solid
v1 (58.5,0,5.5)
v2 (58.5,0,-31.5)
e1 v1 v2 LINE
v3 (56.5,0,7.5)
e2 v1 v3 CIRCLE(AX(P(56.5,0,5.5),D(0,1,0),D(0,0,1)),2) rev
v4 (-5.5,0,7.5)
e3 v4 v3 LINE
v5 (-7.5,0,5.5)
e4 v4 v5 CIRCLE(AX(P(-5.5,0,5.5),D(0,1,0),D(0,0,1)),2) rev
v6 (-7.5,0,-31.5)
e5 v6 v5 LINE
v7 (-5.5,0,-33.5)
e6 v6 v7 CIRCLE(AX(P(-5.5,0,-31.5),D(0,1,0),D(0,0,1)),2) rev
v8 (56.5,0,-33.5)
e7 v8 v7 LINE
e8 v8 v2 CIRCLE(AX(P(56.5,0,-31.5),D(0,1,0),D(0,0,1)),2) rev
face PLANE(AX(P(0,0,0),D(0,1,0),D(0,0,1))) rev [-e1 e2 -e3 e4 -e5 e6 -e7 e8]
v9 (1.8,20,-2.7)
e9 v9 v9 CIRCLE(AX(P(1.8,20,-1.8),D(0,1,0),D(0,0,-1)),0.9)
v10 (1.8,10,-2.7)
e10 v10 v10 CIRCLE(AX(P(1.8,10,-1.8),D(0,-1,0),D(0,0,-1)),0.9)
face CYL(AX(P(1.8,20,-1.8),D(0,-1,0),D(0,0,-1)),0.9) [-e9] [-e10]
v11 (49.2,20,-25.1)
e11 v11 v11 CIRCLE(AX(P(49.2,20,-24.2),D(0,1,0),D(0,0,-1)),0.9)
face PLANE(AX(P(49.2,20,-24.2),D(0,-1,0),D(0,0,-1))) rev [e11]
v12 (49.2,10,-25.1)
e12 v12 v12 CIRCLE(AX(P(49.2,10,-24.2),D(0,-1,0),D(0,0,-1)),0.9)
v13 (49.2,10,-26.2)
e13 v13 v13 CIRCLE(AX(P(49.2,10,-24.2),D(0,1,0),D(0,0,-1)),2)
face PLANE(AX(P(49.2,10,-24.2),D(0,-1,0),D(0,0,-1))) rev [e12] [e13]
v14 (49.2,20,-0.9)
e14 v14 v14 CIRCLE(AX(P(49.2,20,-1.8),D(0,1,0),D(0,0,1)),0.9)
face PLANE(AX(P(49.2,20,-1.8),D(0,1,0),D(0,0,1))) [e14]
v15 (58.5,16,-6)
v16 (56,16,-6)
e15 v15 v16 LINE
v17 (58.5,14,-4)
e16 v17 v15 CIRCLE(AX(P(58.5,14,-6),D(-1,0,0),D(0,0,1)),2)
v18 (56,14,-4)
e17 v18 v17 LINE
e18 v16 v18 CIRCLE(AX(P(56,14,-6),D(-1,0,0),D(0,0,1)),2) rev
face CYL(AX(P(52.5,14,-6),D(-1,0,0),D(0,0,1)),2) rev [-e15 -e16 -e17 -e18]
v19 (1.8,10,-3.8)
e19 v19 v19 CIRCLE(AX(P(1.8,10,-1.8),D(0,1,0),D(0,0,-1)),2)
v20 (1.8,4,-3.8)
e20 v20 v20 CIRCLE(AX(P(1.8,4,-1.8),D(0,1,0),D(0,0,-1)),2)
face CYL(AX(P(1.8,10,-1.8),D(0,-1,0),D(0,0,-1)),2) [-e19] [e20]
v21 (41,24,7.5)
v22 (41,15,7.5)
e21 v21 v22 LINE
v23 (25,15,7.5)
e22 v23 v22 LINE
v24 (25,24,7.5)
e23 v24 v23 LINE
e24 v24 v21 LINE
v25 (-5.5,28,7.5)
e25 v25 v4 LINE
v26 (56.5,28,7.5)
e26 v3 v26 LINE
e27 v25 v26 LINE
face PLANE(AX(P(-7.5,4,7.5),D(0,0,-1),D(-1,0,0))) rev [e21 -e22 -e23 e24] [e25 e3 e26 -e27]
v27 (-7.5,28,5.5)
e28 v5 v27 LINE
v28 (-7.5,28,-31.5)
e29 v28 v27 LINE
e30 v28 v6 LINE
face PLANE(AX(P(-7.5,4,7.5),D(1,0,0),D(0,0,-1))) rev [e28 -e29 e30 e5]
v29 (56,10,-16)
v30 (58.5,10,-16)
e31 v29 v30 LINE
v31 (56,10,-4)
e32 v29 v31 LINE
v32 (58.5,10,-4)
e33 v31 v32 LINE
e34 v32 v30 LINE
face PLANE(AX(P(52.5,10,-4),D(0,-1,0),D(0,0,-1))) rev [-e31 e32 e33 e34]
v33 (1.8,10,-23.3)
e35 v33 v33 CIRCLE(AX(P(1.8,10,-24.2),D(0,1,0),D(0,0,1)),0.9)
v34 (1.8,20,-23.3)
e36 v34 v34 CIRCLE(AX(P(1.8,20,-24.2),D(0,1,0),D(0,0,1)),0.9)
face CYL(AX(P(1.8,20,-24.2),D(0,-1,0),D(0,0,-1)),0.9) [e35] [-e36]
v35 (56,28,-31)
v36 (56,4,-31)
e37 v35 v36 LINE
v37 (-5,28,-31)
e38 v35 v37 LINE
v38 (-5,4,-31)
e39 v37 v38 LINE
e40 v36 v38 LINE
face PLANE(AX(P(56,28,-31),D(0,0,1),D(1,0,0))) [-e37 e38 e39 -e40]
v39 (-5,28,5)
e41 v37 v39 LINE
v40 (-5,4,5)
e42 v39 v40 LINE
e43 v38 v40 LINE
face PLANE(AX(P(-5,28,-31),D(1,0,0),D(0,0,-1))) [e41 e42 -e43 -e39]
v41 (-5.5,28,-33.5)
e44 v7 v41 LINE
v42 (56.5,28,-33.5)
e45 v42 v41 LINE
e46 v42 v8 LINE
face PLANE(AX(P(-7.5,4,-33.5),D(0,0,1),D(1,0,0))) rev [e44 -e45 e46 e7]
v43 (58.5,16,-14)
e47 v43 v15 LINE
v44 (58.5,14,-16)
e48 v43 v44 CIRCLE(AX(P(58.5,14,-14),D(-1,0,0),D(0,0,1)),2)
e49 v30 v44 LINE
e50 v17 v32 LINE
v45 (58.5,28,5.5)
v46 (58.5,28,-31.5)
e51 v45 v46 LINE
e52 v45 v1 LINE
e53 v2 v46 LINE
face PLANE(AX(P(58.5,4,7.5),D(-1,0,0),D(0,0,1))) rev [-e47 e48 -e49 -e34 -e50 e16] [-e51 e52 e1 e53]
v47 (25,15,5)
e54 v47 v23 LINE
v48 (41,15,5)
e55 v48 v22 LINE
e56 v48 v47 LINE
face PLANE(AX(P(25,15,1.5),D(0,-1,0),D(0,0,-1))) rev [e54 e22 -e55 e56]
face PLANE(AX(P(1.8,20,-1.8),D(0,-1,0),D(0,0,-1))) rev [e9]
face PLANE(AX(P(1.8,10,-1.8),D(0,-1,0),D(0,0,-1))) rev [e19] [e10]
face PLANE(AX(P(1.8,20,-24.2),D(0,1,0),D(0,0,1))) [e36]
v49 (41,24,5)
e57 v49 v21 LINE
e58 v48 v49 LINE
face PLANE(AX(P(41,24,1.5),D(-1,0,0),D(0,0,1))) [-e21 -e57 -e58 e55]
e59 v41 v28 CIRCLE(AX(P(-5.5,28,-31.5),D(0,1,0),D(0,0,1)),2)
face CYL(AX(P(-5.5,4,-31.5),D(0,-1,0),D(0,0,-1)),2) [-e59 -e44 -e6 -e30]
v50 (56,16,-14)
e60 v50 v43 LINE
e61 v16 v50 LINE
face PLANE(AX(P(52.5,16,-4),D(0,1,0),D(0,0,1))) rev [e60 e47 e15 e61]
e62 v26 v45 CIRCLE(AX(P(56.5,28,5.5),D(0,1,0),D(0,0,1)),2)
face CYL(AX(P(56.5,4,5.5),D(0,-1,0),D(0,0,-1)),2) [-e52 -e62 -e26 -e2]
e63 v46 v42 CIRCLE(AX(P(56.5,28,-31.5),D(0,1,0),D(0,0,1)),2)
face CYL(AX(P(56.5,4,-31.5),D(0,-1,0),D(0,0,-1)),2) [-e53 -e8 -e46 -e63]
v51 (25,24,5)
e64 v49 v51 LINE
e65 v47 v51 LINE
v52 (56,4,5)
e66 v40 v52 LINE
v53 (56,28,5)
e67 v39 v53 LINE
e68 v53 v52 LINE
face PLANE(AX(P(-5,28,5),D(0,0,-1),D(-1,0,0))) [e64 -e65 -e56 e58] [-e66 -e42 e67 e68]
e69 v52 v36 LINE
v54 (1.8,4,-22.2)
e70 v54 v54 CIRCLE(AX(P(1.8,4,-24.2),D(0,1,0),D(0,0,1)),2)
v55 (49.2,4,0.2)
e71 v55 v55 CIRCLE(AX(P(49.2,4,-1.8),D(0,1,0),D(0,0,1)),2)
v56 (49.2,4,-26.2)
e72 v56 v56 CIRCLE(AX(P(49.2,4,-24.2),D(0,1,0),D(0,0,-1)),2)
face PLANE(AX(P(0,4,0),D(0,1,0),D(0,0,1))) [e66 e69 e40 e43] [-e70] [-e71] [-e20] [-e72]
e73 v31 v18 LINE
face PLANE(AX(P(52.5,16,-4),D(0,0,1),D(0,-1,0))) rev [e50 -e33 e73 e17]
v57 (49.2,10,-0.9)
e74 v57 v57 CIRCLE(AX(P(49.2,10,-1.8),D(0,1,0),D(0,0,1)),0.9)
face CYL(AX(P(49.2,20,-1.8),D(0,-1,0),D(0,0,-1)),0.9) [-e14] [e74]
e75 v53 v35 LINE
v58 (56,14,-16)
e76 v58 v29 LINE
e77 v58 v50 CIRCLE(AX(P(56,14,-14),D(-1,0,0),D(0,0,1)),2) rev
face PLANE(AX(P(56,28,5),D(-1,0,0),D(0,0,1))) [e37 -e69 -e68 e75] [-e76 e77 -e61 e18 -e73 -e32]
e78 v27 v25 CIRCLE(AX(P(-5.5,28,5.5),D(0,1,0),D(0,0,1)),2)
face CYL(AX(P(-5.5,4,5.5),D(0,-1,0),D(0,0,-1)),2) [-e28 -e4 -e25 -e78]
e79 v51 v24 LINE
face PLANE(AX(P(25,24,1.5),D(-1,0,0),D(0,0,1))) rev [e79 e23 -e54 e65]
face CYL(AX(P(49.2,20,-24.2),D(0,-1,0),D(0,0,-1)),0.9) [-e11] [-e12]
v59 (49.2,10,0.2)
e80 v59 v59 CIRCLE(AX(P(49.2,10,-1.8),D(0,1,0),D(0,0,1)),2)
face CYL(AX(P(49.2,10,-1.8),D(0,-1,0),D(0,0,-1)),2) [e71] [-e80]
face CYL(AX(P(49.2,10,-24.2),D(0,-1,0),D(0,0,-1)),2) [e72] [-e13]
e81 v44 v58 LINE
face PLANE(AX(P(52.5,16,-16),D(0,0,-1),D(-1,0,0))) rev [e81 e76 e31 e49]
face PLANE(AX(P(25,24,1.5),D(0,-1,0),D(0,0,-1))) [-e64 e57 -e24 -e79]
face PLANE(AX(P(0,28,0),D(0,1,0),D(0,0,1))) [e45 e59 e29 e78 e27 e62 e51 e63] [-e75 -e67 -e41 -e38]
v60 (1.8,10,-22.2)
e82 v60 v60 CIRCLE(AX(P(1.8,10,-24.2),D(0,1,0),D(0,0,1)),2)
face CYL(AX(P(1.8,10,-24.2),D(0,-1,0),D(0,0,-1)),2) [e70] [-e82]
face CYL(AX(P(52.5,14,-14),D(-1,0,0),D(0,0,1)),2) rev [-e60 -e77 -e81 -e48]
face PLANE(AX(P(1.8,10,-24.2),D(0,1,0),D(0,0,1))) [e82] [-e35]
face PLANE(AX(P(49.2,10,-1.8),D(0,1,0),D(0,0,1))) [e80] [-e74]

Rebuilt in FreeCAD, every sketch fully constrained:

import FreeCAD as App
import Part
import Sketcher


def edges_at(feature, points):
    """Names of the edges that pass closest to the given points."""
    edges = feature.Shape.Edges
    near = lambda p: min(range(len(edges)), key=lambda i: edges[i].distToShape(Part.Vertex(*p))[0])
    return sorted({f"Edge{near(p) + 1}" for p in points})

doc = App.newDocument("Part")
body = doc.addObject("PartDesign::Body", "Body")

# Sketch on XZ plane
sketch1 = body.newObject("Sketcher::SketchObject", "Sketch")
sketch1.AttachmentSupport = (doc.getObject("XZ_Plane"), [""])
sketch1.MapMode = "FlatFace"
sketch1.addGeometry(Part.LineSegment(App.Vector(-8, -34, 0), App.Vector(-8, 8, 0)), False)
sketch1.addGeometry(Part.LineSegment(App.Vector(-8, 8, 0), App.Vector(58, 8, 0)), False)
sketch1.addGeometry(Part.LineSegment(App.Vector(58, 8, 0), App.Vector(58, -34, 0)), False)
sketch1.addGeometry(Part.LineSegment(App.Vector(58, -34, 0), App.Vector(-8, -34, 0)), False)
sketch1.addConstraint(Sketcher.Constraint("Coincident", 0, 2, 1, 1))
sketch1.addConstraint(Sketcher.Constraint("Coincident", 1, 2, 2, 1))
sketch1.addConstraint(Sketcher.Constraint("Coincident", 2, 2, 3, 1))
sketch1.addConstraint(Sketcher.Constraint("Coincident", 3, 2, 0, 1))
sketch1.addConstraint(Sketcher.Constraint("Vertical", 0))
sketch1.addConstraint(Sketcher.Constraint("Horizontal", 1))
sketch1.addConstraint(Sketcher.Constraint("Vertical", 2))
sketch1.addConstraint(Sketcher.Constraint("Horizontal", 3))
sketch1.addConstraint(Sketcher.Constraint("DistanceX", 1, 1, 1, 2, 66.0))
sketch1.addConstraint(Sketcher.Constraint("DistanceY", 0, 1, 0, 2, 41.0))
sketch1.addConstraint(Sketcher.Constraint("DistanceX", 0, 2, -1, 1, 7.5))
sketch1.addConstraint(Sketcher.Constraint("DistanceY", -1, 1, 0, 2, 7.5))
pad1 = body.newObject("PartDesign::Pad", "Pad")
pad1.Profile = sketch1
pad1.Length = 4
pad1.Reversed = True

# Sketch on XZ plane
sketch2 = body.newObject("Sketcher::SketchObject", "Sketch001")
sketch2.AttachmentSupport = (doc.getObject("XZ_Plane"), [""])
sketch2.MapMode = "FlatFace"
sketch2.AttachmentOffset = App.Placement(App.Vector(0, 0, -4), App.Rotation())
sketch2.addGeometry(Part.LineSegment(App.Vector(-8, -34, 0), App.Vector(-8, 8, 0)), False)
sketch2.addGeometry(Part.LineSegment(App.Vector(-8, 8, 0), App.Vector(58, 8, 0)), False)
sketch2.addGeometry(Part.LineSegment(App.Vector(58, 8, 0), App.Vector(58, -34, 0)), False)
sketch2.addGeometry(Part.LineSegment(App.Vector(58, -34, 0), App.Vector(-8, -34, 0)), False)
sketch2.addGeometry(Part.LineSegment(App.Vector(56, 5, 0), App.Vector(-5, 5, 0)), False)
sketch2.addGeometry(Part.LineSegment(App.Vector(-5, 5, 0), App.Vector(-5, -31, 0)), False)
sketch2.addGeometry(Part.LineSegment(App.Vector(-5, -31, 0), App.Vector(56, -31, 0)), False)
sketch2.addGeometry(Part.LineSegment(App.Vector(56, -31, 0), App.Vector(56, 5, 0)), False)
sketch2.addConstraint(Sketcher.Constraint("Coincident", 0, 2, 1, 1))
sketch2.addConstraint(Sketcher.Constraint("Coincident", 1, 2, 2, 1))
sketch2.addConstraint(Sketcher.Constraint("Coincident", 2, 2, 3, 1))
sketch2.addConstraint(Sketcher.Constraint("Coincident", 3, 2, 0, 1))
sketch2.addConstraint(Sketcher.Constraint("Coincident", 4, 2, 5, 1))
sketch2.addConstraint(Sketcher.Constraint("Coincident", 5, 2, 6, 1))
sketch2.addConstraint(Sketcher.Constraint("Coincident", 6, 2, 7, 1))
sketch2.addConstraint(Sketcher.Constraint("Coincident", 7, 2, 4, 1))
sketch2.addConstraint(Sketcher.Constraint("Vertical", 0))
sketch2.addConstraint(Sketcher.Constraint("Horizontal", 1))
sketch2.addConstraint(Sketcher.Constraint("Vertical", 2))
sketch2.addConstraint(Sketcher.Constraint("Horizontal", 3))
sketch2.addConstraint(Sketcher.Constraint("Horizontal", 4))
sketch2.addConstraint(Sketcher.Constraint("Vertical", 5))
sketch2.addConstraint(Sketcher.Constraint("Horizontal", 6))
sketch2.addConstraint(Sketcher.Constraint("Vertical", 7))
sketch2.addConstraint(Sketcher.Constraint("DistanceX", 1, 1, 1, 2, 66.0))
sketch2.addConstraint(Sketcher.Constraint("DistanceX", 4, 2, 4, 1, 61.0))
sketch2.addConstraint(Sketcher.Constraint("DistanceY", 0, 1, 0, 2, 41.0))
sketch2.addConstraint(Sketcher.Constraint("DistanceY", 5, 2, 5, 1, 36.0))
sketch2.addConstraint(Sketcher.Constraint("DistanceX", 4, 2, -1, 1, 5.0))
sketch2.addConstraint(Sketcher.Constraint("DistanceY", -1, 1, 4, 2, 5.0))
sketch2.addConstraint(Sketcher.Constraint("DistanceX", 0, 2, -1, 1, 7.5))
sketch2.addConstraint(Sketcher.Constraint("DistanceY", -1, 1, 0, 2, 7.5))
pad2 = body.newObject("PartDesign::Pad", "Pad001")
pad2.Profile = sketch2
pad2.Length = 24
pad2.Reversed = True

# Sketch on XZ plane
sketch3 = body.newObject("Sketcher::SketchObject", "Sketch002")
sketch3.AttachmentSupport = (doc.getObject("XZ_Plane"), [""])
sketch3.MapMode = "FlatFace"
sketch3.AttachmentOffset = App.Placement(App.Vector(0, 0, -4), App.Rotation())
sketch3.addGeometry(Part.Circle(App.Vector(1.8, -24.2, 0), App.Vector(0, 0, 1), 0.9), False)
sketch3.addGeometry(Part.Circle(App.Vector(1.8, -1.8, 0), App.Vector(0, 0, 1), 0.9), False)
sketch3.addGeometry(Part.Circle(App.Vector(49.2, -1.8, 0), App.Vector(0, 0, 1), 0.9), False)
sketch3.addGeometry(Part.Circle(App.Vector(49.2, -24.2, 0), App.Vector(0, 0, 1), 0.9), False)
sketch3.addConstraint(Sketcher.Constraint("Equal", 0, 1))
sketch3.addConstraint(Sketcher.Constraint("Equal", 1, 2))
sketch3.addConstraint(Sketcher.Constraint("Equal", 2, 3))
sketch3.addConstraint(Sketcher.Constraint("Horizontal", 1, 3, 2, 3))
sketch3.addConstraint(Sketcher.Constraint("Horizontal", 0, 3, 3, 3))
sketch3.addConstraint(Sketcher.Constraint("Vertical", 0, 3, 1, 3))
sketch3.addConstraint(Sketcher.Constraint("Vertical", 2, 3, 3, 3))
sketch3.addConstraint(Sketcher.Constraint("Diameter", 0, 1.8))
sketch3.addConstraint(Sketcher.Constraint("DistanceX", -1, 1, 0, 3, 1.8))
sketch3.addConstraint(Sketcher.Constraint("DistanceY", 0, 3, -1, 1, 24.2))
sketch3.addConstraint(Sketcher.Constraint("DistanceY", 1, 3, -1, 1, 1.8))
sketch3.addConstraint(Sketcher.Constraint("DistanceX", -1, 1, 2, 3, 49.2))
pad3 = body.newObject("PartDesign::Pad", "Pad002")
pad3.Profile = sketch3
pad3.Length = 16
pad3.Reversed = True

# Sketch on XZ plane
sketch4 = body.newObject("Sketcher::SketchObject", "Sketch003")
sketch4.AttachmentSupport = (doc.getObject("XZ_Plane"), [""])
sketch4.MapMode = "FlatFace"
sketch4.AttachmentOffset = App.Placement(App.Vector(0, 0, -4), App.Rotation())
sketch4.addGeometry(Part.Circle(App.Vector(1.8, -24.2, 0), App.Vector(0, 0, 1), 2), False)
sketch4.addGeometry(Part.Circle(App.Vector(1.8, -1.8, 0), App.Vector(0, 0, 1), 2), False)
sketch4.addGeometry(Part.Circle(App.Vector(49.2, -1.8, 0), App.Vector(0, 0, 1), 2), False)
sketch4.addGeometry(Part.Circle(App.Vector(49.2, -24.2, 0), App.Vector(0, 0, 1), 2), False)
sketch4.addConstraint(Sketcher.Constraint("Equal", 0, 1))
sketch4.addConstraint(Sketcher.Constraint("Equal", 1, 2))
sketch4.addConstraint(Sketcher.Constraint("Equal", 2, 3))
sketch4.addConstraint(Sketcher.Constraint("Horizontal", 1, 3, 2, 3))
sketch4.addConstraint(Sketcher.Constraint("Horizontal", 0, 3, 3, 3))
sketch4.addConstraint(Sketcher.Constraint("Vertical", 0, 3, 1, 3))
sketch4.addConstraint(Sketcher.Constraint("Vertical", 2, 3, 3, 3))
sketch4.addConstraint(Sketcher.Constraint("Diameter", 0, 4.0))
sketch4.addConstraint(Sketcher.Constraint("DistanceX", -1, 1, 0, 3, 1.8))
sketch4.addConstraint(Sketcher.Constraint("DistanceY", 0, 3, -1, 1, 24.2))
sketch4.addConstraint(Sketcher.Constraint("DistanceY", 1, 3, -1, 1, 1.8))
sketch4.addConstraint(Sketcher.Constraint("DistanceX", -1, 1, 2, 3, 49.2))
pad4 = body.newObject("PartDesign::Pad", "Pad003")
pad4.Profile = sketch4
pad4.Length = 6
pad4.Reversed = True

# Sketch on YZ plane
sketch5 = body.newObject("Sketcher::SketchObject", "Sketch004")
sketch5.AttachmentSupport = (doc.getObject("YZ_Plane"), [""])
sketch5.MapMode = "FlatFace"
sketch5.AttachmentOffset = App.Placement(App.Vector(0, 0, 58.5), App.Rotation())
sketch5.addGeometry(Part.LineSegment(App.Vector(16, -4, 0), App.Vector(10, -4, 0)), False)
sketch5.addGeometry(Part.LineSegment(App.Vector(10, -4, 0), App.Vector(10, -16, 0)), False)
sketch5.addGeometry(Part.LineSegment(App.Vector(10, -16, 0), App.Vector(16, -16, 0)), False)
sketch5.addGeometry(Part.LineSegment(App.Vector(16, -16, 0), App.Vector(16, -4, 0)), False)
sketch5.addConstraint(Sketcher.Constraint("Coincident", 0, 2, 1, 1))
sketch5.addConstraint(Sketcher.Constraint("Coincident", 1, 2, 2, 1))
sketch5.addConstraint(Sketcher.Constraint("Coincident", 2, 2, 3, 1))
sketch5.addConstraint(Sketcher.Constraint("Coincident", 3, 2, 0, 1))
sketch5.addConstraint(Sketcher.Constraint("Horizontal", 0))
sketch5.addConstraint(Sketcher.Constraint("Vertical", 1))
sketch5.addConstraint(Sketcher.Constraint("Horizontal", 2))
sketch5.addConstraint(Sketcher.Constraint("Vertical", 3))
sketch5.addConstraint(Sketcher.Constraint("DistanceX", 0, 2, 0, 1, 6.0))
sketch5.addConstraint(Sketcher.Constraint("DistanceY", 1, 2, 1, 1, 12.0))
sketch5.addConstraint(Sketcher.Constraint("DistanceX", -1, 1, 0, 2, 10.0))
sketch5.addConstraint(Sketcher.Constraint("DistanceY", 0, 2, -1, 1, 4.0))
pocket1 = body.newObject("PartDesign::Pocket", "Pocket")
pocket1.Profile = sketch5
pocket1.Length = 6
doc.recompute()

fillet = body.newObject("PartDesign::Fillet", "Fillet")
fillet.Base = (pocket1, edges_at(pocket1, [
    (-7.5, 14, 7.5),
    (-7.5, 14, -33.5),
    (58.5, 14, -33.5),
    (58.5, 14, 7.5),
]))
fillet.Radius = 2
doc.recompute()

fillet2 = body.newObject("PartDesign::Fillet", "Fillet001")
fillet2.Base = (fillet, edges_at(fillet, [(57.25, 16, -4), (57.25, 16, -16)]))
fillet2.Radius = 2

# Sketch on XY plane
sketch6 = body.newObject("Sketcher::SketchObject", "Sketch005")
sketch6.AttachmentSupport = (doc.getObject("XY_Plane"), [""])
sketch6.MapMode = "FlatFace"
sketch6.AttachmentOffset = App.Placement(App.Vector(0, 0, 7.5), App.Rotation())
sketch6.addGeometry(Part.LineSegment(App.Vector(25, 24, 0), App.Vector(25, 15, 0)), False)
sketch6.addGeometry(Part.LineSegment(App.Vector(25, 15, 0), App.Vector(41, 15, 0)), False)
sketch6.addGeometry(Part.LineSegment(App.Vector(41, 15, 0), App.Vector(41, 24, 0)), False)
sketch6.addGeometry(Part.LineSegment(App.Vector(41, 24, 0), App.Vector(25, 24, 0)), False)
sketch6.addConstraint(Sketcher.Constraint("Coincident", 0, 2, 1, 1))
sketch6.addConstraint(Sketcher.Constraint("Coincident", 1, 2, 2, 1))
sketch6.addConstraint(Sketcher.Constraint("Coincident", 2, 2, 3, 1))
sketch6.addConstraint(Sketcher.Constraint("Coincident", 3, 2, 0, 1))
sketch6.addConstraint(Sketcher.Constraint("Vertical", 0))
sketch6.addConstraint(Sketcher.Constraint("Horizontal", 1))
sketch6.addConstraint(Sketcher.Constraint("Vertical", 2))
sketch6.addConstraint(Sketcher.Constraint("Horizontal", 3))
sketch6.addConstraint(Sketcher.Constraint("DistanceX", 1, 1, 1, 2, 16.0))
sketch6.addConstraint(Sketcher.Constraint("DistanceY", 0, 2, 0, 1, 9.0))
sketch6.addConstraint(Sketcher.Constraint("DistanceX", -1, 1, 0, 2, 25.0))
sketch6.addConstraint(Sketcher.Constraint("DistanceY", -1, 1, 0, 2, 15.0))
pocket2 = body.newObject("PartDesign::Pocket", "Pocket001")
pocket2.Profile = sketch6
pocket2.Length = 6

doc.recompute()
